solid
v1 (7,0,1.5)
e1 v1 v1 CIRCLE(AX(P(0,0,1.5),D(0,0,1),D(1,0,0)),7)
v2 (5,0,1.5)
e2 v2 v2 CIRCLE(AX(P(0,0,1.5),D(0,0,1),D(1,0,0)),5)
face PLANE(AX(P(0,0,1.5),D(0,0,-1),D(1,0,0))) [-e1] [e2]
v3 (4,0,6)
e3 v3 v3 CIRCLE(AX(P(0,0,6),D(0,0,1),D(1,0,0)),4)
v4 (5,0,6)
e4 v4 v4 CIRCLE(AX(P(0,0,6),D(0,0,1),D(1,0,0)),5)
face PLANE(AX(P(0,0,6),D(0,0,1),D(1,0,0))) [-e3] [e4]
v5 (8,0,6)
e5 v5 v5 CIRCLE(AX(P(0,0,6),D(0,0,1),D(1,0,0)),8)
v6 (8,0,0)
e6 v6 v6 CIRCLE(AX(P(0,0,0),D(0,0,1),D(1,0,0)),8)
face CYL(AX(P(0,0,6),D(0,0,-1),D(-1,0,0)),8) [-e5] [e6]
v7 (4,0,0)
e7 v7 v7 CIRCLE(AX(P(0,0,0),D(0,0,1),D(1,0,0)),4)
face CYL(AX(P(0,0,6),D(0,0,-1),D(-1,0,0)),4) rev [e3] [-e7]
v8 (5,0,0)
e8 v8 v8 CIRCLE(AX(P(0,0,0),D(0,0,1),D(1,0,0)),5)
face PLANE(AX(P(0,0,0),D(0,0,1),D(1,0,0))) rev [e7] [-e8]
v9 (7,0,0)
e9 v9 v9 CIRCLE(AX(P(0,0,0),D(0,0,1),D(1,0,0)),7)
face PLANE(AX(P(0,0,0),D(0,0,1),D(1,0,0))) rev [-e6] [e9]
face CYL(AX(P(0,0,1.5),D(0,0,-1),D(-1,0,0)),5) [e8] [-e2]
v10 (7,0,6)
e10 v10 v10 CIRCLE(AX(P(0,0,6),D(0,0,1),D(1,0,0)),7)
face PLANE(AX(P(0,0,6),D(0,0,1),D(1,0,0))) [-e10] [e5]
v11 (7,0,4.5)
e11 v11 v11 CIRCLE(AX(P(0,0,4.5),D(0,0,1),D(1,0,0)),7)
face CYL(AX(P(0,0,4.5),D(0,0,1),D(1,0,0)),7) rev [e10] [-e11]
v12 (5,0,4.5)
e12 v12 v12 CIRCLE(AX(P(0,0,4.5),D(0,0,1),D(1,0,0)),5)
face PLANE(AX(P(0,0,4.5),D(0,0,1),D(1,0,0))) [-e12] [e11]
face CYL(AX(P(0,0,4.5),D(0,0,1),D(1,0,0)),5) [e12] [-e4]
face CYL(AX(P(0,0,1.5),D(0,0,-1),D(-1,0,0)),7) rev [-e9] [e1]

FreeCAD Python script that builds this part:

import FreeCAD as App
import Part
import Sketcher
from FreeCAD import Vector
Q = App.Units.Quantity

doc = App.newDocument("Part")
body = doc.addObject("PartDesign::Body", "Body")

# Sketch on XY plane
sketch1 = body.newObject("Sketcher::SketchObject", "Sketch")
sketch1.AttachmentSupport = (doc.getObject("XY_Plane"), [""])
sketch1.MapMode = "FlatFace"
sketch1.addGeometry([
    Part.Circle(Vector(0, 0, 0), Vector(0, 0, 1), 8),
    Part.Circle(Vector(0, 0, 0), Vector(0, 0, 1), 4),
], False)
sketch1.addConstraint([
    Sketcher.Constraint("Coincident", 0, 3, -1, 1),
    Sketcher.Constraint("Coincident", 1, 3, -1, 1),
    Sketcher.Constraint("Diameter", 0, Q("16 mm")),
    Sketcher.Constraint("Diameter", 1, Q("8 mm")),
])
pad1 = body.newObject("PartDesign::Pad", "Pad")
pad1.Profile = sketch1
pad1.Length = 6

# Sketch on XY plane
sketch2 = body.newObject("Sketcher::SketchObject", "Sketch001")
sketch2.AttachmentSupport = (doc.getObject("XY_Plane"), [""])
sketch2.MapMode = "FlatFace"
sketch2.AttachmentOffset = App.Placement(Vector(0, 0, 6), App.Rotation())
sketch2.addGeometry([
    Part.Circle(Vector(0, 0, 0), Vector(0, 0, 1), 7),
    Part.Circle(Vector(0, 0, 0), Vector(0, 0, 1), 5),
], False)
sketch2.addConstraint([
    Sketcher.Constraint("Coincident", 0, 3, -1, 1),
    Sketcher.Constraint("Coincident", 1, 3, -1, 1),
    Sketcher.Constraint("Diameter", 0, Q("14 mm")),
    Sketcher.Constraint("Diameter", 1, Q("10 mm")),
])
pocket1 = body.newObject("PartDesign::Pocket", "Pocket")
pocket1.Profile = sketch2
pocket1.Length = 1.5
doc.recompute()

datumplane = body.newObject("PartDesign::Plane", "DatumPlane")
datumplane.AttachmentSupport = (doc.getObject("XY_Plane"), [""])
datumplane.MapMode = "FlatFace"
datumplane.AttachmentOffset = App.Placement(Vector(0, 0, 3), App.Rotation())
mirrored = body.newObject("PartDesign::Mirrored", "Mirrored")
mirrored.Originals = [pocket1]
mirrored.MirrorPlane = (datumplane, [""])
body.Tip = mirrored

doc.recompute()
